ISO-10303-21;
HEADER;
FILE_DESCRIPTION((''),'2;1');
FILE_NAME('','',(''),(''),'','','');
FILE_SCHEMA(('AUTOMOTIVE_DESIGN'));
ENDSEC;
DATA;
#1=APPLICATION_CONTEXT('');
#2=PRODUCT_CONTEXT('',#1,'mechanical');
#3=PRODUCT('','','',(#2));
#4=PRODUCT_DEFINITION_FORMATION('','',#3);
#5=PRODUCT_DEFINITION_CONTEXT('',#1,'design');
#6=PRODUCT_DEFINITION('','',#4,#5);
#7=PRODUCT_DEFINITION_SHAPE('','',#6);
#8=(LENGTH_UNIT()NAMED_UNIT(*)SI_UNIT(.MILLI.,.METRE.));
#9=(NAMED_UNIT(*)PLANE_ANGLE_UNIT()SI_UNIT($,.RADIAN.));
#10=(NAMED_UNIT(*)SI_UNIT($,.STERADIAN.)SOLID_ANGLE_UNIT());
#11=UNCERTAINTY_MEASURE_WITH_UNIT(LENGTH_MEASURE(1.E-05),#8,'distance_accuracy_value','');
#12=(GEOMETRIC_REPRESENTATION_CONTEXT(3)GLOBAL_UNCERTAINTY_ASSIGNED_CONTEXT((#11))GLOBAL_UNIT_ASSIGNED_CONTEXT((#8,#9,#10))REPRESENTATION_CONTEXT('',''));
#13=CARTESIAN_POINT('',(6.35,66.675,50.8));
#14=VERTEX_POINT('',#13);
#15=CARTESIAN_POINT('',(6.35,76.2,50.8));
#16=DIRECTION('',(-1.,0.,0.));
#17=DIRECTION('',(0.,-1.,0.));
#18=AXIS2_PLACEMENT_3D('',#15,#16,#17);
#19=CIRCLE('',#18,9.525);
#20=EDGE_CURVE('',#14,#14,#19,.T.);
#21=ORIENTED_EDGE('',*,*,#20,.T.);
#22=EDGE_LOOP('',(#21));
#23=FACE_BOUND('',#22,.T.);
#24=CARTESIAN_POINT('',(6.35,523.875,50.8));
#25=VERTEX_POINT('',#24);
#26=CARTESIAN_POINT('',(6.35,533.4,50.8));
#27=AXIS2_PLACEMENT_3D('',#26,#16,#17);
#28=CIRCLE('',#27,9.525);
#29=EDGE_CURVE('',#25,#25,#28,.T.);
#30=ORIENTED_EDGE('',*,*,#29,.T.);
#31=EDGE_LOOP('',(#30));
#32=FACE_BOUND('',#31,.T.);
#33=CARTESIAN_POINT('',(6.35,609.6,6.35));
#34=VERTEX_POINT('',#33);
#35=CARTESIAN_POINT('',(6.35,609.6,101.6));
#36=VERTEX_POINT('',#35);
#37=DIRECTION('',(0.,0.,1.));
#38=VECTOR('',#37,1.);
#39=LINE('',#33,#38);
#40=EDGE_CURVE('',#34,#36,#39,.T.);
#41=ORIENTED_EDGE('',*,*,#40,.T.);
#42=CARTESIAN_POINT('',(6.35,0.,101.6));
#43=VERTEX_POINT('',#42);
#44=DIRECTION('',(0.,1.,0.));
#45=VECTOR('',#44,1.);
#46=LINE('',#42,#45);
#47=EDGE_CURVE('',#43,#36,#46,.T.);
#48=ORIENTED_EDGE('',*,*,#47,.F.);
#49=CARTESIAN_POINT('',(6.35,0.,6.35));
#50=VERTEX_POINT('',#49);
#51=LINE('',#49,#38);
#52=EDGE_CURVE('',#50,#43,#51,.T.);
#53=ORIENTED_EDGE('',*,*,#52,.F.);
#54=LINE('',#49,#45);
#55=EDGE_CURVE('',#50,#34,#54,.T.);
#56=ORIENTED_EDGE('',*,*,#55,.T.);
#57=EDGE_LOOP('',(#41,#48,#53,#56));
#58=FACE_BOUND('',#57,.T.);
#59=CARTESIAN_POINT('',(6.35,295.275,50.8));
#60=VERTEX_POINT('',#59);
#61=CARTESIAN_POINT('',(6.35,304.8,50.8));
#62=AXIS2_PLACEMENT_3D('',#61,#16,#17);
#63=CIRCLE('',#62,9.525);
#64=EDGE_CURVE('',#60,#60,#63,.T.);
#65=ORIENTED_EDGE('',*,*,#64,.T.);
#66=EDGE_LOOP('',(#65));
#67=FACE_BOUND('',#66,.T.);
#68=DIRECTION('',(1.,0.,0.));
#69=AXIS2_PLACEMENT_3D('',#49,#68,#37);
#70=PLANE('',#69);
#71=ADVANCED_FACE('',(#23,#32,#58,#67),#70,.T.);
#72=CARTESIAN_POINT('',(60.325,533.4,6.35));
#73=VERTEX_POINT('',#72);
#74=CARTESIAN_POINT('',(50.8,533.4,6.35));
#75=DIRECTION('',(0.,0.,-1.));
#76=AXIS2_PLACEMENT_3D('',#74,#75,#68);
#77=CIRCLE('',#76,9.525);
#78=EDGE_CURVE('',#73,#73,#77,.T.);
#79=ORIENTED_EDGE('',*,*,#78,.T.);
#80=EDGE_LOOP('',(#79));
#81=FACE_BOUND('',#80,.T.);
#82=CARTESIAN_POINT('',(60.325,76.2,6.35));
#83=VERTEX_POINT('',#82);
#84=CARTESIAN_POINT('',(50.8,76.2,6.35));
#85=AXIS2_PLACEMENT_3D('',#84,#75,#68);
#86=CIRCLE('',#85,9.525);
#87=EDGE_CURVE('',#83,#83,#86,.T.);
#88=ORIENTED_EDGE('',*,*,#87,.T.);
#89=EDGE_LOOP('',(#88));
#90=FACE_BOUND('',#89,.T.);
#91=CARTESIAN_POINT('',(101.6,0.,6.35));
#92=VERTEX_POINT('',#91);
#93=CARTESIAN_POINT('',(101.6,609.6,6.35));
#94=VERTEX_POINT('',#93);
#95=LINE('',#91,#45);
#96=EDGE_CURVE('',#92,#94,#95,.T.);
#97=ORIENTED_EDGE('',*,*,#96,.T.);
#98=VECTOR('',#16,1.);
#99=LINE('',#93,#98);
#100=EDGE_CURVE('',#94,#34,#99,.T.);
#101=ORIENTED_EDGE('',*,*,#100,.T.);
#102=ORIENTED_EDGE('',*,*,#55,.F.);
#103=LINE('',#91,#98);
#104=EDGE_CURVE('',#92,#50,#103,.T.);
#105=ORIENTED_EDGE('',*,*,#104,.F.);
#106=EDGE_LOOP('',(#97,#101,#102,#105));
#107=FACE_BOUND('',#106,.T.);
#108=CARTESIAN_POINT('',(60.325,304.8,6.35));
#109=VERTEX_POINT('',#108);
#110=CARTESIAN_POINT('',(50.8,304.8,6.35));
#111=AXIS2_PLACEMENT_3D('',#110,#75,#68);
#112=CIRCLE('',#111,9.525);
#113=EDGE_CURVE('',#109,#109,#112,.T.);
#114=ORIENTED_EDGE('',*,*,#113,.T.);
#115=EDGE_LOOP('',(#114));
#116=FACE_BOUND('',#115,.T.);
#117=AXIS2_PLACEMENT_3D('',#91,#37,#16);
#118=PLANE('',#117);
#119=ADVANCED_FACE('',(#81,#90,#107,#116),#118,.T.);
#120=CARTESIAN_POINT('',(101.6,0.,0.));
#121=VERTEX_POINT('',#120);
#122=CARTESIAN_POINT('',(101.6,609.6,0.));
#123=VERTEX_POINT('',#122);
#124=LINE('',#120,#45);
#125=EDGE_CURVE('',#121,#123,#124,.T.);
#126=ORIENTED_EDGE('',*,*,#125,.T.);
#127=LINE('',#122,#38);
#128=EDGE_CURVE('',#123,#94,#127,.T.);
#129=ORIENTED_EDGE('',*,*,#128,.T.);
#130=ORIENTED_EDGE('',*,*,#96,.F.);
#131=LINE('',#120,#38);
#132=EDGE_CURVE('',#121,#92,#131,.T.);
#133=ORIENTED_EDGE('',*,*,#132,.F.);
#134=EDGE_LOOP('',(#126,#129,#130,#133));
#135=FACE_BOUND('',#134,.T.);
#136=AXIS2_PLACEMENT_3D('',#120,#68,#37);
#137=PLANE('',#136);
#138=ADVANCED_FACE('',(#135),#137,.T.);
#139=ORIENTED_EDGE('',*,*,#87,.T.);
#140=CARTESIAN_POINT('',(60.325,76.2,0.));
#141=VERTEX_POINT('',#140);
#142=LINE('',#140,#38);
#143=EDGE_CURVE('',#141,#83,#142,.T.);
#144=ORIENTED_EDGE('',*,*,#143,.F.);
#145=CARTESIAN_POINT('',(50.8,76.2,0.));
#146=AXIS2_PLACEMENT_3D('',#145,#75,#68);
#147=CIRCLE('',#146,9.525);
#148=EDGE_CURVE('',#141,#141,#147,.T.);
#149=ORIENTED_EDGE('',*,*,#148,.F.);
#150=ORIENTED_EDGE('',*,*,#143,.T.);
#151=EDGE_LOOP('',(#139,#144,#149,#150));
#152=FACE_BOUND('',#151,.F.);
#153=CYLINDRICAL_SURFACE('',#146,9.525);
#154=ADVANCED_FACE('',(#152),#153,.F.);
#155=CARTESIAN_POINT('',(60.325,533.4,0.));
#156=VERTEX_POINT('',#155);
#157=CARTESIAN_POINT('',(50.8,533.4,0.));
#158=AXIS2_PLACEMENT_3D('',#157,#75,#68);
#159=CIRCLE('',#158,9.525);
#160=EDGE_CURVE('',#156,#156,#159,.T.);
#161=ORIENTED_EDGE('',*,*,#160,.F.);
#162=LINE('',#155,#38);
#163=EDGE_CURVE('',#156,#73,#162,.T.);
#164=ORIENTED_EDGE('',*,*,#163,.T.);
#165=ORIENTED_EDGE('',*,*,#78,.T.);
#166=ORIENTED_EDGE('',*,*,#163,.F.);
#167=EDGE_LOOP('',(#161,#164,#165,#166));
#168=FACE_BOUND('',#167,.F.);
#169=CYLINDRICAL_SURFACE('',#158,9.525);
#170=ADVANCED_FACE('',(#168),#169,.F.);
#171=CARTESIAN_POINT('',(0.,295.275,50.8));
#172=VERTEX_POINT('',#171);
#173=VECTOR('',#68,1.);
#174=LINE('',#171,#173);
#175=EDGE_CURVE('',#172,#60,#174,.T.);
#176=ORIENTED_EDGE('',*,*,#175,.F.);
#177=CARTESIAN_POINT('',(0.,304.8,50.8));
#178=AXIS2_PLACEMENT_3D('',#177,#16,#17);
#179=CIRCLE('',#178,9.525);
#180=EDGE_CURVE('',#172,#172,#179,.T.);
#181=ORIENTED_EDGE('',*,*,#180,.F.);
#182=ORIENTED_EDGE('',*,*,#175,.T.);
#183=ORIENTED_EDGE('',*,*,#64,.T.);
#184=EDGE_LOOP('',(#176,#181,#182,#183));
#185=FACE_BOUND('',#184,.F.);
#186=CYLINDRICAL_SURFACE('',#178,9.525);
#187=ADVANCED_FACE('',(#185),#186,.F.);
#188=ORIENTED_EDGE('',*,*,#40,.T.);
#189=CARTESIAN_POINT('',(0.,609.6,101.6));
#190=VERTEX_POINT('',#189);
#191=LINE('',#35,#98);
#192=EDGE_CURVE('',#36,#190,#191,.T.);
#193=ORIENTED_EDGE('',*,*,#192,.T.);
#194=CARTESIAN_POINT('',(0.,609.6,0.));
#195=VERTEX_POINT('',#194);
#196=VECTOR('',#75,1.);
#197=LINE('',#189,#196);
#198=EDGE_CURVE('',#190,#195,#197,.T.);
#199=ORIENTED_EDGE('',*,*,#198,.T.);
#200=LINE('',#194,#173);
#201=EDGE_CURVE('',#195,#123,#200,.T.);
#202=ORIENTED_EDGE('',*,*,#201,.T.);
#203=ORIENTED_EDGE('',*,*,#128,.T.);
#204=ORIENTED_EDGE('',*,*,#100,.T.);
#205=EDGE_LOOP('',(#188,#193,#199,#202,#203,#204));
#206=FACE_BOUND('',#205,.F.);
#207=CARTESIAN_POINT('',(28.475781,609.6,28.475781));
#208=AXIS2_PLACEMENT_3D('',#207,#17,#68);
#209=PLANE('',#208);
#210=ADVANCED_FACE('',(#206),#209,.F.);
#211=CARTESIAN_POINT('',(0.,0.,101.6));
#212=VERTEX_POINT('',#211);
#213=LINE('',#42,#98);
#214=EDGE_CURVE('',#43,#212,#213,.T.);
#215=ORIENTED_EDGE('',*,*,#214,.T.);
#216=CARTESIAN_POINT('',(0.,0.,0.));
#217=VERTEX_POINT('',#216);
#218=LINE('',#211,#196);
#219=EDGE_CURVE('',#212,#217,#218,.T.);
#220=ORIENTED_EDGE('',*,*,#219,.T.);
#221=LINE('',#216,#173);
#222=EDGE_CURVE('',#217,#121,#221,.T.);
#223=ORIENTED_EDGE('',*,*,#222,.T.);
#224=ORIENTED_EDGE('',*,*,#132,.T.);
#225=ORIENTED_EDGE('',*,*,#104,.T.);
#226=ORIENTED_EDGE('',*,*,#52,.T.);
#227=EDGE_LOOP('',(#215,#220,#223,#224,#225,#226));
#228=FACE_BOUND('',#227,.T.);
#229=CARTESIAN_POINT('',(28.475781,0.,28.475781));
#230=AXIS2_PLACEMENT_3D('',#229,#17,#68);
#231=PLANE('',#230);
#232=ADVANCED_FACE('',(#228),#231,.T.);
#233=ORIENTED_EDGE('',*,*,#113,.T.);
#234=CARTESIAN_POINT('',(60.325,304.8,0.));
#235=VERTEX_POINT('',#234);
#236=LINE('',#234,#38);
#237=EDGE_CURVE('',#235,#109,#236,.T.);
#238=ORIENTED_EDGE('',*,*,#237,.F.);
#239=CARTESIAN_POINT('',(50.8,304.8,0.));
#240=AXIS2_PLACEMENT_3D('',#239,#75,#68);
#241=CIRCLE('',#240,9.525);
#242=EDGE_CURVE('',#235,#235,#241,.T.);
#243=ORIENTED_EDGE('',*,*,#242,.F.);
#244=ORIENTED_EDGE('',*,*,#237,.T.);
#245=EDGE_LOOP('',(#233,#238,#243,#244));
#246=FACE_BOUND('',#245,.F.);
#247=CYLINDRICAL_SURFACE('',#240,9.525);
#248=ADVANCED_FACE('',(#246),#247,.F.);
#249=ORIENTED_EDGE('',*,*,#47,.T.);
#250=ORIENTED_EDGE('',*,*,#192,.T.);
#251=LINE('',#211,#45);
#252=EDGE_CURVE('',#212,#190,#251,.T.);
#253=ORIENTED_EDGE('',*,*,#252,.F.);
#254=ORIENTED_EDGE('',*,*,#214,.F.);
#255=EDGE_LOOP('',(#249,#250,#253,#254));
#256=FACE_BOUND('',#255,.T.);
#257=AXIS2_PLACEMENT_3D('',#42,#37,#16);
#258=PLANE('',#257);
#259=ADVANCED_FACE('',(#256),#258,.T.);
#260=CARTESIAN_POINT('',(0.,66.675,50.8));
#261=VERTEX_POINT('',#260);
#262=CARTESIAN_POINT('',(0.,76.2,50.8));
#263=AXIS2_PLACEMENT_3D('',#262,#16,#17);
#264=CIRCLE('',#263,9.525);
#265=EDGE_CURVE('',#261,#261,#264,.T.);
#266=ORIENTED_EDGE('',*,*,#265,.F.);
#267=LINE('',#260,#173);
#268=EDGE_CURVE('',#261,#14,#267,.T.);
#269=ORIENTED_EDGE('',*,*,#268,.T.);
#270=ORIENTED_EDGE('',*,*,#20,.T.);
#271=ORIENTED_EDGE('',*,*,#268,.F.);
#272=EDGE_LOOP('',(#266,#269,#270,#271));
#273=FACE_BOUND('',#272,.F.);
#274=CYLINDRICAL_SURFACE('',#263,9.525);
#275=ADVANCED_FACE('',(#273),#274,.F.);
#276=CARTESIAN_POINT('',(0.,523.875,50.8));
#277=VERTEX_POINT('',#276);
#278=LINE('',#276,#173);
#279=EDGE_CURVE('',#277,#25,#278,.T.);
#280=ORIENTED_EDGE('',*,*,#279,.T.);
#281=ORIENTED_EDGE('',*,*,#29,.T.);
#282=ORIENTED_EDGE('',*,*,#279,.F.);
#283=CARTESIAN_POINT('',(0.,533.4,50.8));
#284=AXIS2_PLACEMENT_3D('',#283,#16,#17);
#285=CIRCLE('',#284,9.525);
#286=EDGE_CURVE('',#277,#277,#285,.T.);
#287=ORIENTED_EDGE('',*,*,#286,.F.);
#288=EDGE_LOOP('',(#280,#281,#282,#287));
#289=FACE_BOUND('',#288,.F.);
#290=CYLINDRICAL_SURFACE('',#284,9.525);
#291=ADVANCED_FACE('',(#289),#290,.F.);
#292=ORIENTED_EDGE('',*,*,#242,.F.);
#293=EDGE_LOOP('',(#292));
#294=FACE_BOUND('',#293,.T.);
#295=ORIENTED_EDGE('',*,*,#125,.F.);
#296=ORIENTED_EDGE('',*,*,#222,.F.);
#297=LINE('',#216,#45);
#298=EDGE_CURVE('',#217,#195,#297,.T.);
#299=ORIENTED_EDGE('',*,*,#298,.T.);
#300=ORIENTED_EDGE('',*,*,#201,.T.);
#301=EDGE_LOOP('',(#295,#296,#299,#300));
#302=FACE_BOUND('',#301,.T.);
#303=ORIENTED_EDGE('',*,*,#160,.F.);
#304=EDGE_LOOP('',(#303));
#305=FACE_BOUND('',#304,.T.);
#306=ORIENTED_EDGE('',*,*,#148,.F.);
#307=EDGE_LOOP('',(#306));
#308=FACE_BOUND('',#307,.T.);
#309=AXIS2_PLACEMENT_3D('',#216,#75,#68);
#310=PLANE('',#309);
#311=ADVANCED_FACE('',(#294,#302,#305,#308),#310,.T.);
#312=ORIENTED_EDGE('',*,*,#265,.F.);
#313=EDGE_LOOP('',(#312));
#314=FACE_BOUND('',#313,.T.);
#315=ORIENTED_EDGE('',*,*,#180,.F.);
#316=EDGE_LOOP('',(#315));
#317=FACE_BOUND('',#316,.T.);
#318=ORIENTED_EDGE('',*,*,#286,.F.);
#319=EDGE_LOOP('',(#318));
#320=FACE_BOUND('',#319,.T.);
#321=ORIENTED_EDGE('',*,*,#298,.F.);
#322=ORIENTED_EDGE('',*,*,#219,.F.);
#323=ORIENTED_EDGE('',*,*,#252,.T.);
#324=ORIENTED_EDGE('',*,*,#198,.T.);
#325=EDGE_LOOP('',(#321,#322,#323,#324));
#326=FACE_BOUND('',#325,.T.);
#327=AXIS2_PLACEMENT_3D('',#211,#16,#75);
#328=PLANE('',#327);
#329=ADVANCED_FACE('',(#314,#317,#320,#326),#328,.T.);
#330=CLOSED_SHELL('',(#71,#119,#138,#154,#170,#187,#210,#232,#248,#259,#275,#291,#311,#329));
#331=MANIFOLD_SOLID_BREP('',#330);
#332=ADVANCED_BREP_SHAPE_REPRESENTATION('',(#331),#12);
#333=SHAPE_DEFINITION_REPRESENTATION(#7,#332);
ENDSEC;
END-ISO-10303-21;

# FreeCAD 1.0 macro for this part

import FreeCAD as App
import Part
import Sketcher
from FreeCAD import Vector
Q = App.Units.Quantity

doc = App.newDocument("Part")
body = doc.addObject("PartDesign::Body", "Body")

# Sketch on XZ plane
sketch1 = body.newObject("Sketcher::SketchObject", "Sketch")
sketch1.AttachmentSupport = (doc.getObject("XZ_Plane"), [""])
sketch1.MapMode = "FlatFace"
sketch1.addGeometry([
    Part.LineSegment(Vector(0, 101.6, 0), Vector(0, 0, 0)),  # 0
    Part.LineSegment(Vector(0, 0, 0), Vector(101.6, 0, 0)),  # 1
    Part.LineSegment(Vector(101.6, 0, 0), Vector(101.6, 6.35, 0)),  # 2
    Part.LineSegment(Vector(101.6, 6.35, 0), Vector(6.35, 6.35, 0)),  # 3
    Part.LineSegment(Vector(6.35, 6.35, 0), Vector(6.35, 101.6, 0)),  # 4
    Part.LineSegment(Vector(6.35, 101.6, 0), Vector(0, 101.6, 0)),  # 5
], False)
sketch1.addConstraint([
    Sketcher.Constraint("Coincident", 0, 2, 1, 1),
    Sketcher.Constraint("Coincident", 1, 2, 2, 1),
    Sketcher.Constraint("Coincident", 2, 2, 3, 1),
    Sketcher.Constraint("Coincident", 3, 2, 4, 1),
    Sketcher.Constraint("Coincident", 4, 2, 5, 1),
    Sketcher.Constraint("Coincident", 5, 2, 0, 1),
    Sketcher.Constraint("Vertical", 0),
    Sketcher.Constraint("Horizontal", 1),
    Sketcher.Constraint("Vertical", 2),
    Sketcher.Constraint("Horizontal", 3),
    Sketcher.Constraint("Vertical", 4),
    Sketcher.Constraint("Horizontal", 5),
    Sketcher.Constraint("Coincident", 0, 2, -1, 1),
    Sketcher.Constraint("Equal", 1, 0),
    Sketcher.Constraint("Equal", 5, 2),
    Sketcher.Constraint("DistanceX", 1, 1, 1, 2, Q("4 in")),
    Sketcher.Constraint("DistanceX", 3, 2, 3, 1, Q("3.75 in")),
])
pad1 = body.newObject("PartDesign::Pad", "Pad")
pad1.Profile = sketch1
pad1.Length = Q("24 in")
pad1.Reversed = True

# Sketch on YZ plane
sketch2 = body.newObject("Sketcher::SketchObject", "Sketch001")
sketch2.AttachmentSupport = (doc.getObject("YZ_Plane"), [""])
sketch2.MapMode = "FlatFace"
sketch2.addGeometry([
    Part.Circle(Vector(533.4, 50.8, 0), Vector(0, 0, 1), 9.525),
    Part.Circle(Vector(304.8, 50.8, 0), Vector(0, 0, 1), 9.525),
    Part.Circle(Vector(76.2, 50.8, 0), Vector(0, 0, 1), 9.525),
], False)
sketch2.addConstraint([
    Sketcher.Constraint("Equal", 0, 1),
    Sketcher.Constraint("Equal", 1, 2),
    Sketcher.Constraint("Horizontal", 0, 3, 1, 3),
    Sketcher.Constraint("Horizontal", 1, 3, 2, 3),
    Sketcher.Constraint("Diameter", 0, Q("0.75 in")),
    Sketcher.Constraint("DistanceX", -1, 1, 0, 3, Q("21 in")),
    Sketcher.Constraint("DistanceY", -1, 1, 0, 3, Q("2 in")),
    Sketcher.Constraint("DistanceX", -1, 1, 1, 3, Q("12 in")),
    Sketcher.Constraint("DistanceX", -1, 1, 2, 3, Q("3 in")),
])
pocket1 = body.newObject("PartDesign::Pocket", "Pocket")
pocket1.Profile = sketch2
pocket1.Length = Q("1 in")
pocket1.Reversed = True

# Sketch on XY plane
sketch3 = body.newObject("Sketcher::SketchObject", "Sketch002")
sketch3.AttachmentSupport = (doc.getObject("XY_Plane"), [""])
sketch3.MapMode = "FlatFace"
sketch3.addGeometry([
    Part.Circle(Vector(50.8, 533.4, 0), Vector(0, 0, 1), 9.525),
    Part.Circle(Vector(50.8, 304.8, 0), Vector(0, 0, 1), 9.525),
    Part.Circle(Vector(50.8, 76.2, 0), Vector(0, 0, 1), 9.525),
], False)
sketch3.addConstraint([
    Sketcher.Constraint("Equal", 0, 1),
    Sketcher.Constraint("Equal", 1, 2),
    Sketcher.Constraint("Vertical", 0, 3, 1, 3),
    Sketcher.Constraint("Vertical", 1, 3, 2, 3),
    Sketcher.Constraint("Diameter", 0, Q("0.75 in")),
    Sketcher.Constraint("DistanceX", -1, 1, 0, 3, Q("2 in")),
    Sketcher.Constraint("DistanceY", -1, 1, 0, 3, Q("21 in")),
    Sketcher.Constraint("DistanceY", -1, 1, 1, 3, Q("12 in")),
    Sketcher.Constraint("DistanceY", -1, 1, 2, 3, Q("3 in")),
])
pocket2 = body.newObject("PartDesign::Pocket", "Pocket001")
pocket2.Profile = sketch3
pocket2.Length = Q("1 in")
pocket2.Reversed = True

doc.recompute()
